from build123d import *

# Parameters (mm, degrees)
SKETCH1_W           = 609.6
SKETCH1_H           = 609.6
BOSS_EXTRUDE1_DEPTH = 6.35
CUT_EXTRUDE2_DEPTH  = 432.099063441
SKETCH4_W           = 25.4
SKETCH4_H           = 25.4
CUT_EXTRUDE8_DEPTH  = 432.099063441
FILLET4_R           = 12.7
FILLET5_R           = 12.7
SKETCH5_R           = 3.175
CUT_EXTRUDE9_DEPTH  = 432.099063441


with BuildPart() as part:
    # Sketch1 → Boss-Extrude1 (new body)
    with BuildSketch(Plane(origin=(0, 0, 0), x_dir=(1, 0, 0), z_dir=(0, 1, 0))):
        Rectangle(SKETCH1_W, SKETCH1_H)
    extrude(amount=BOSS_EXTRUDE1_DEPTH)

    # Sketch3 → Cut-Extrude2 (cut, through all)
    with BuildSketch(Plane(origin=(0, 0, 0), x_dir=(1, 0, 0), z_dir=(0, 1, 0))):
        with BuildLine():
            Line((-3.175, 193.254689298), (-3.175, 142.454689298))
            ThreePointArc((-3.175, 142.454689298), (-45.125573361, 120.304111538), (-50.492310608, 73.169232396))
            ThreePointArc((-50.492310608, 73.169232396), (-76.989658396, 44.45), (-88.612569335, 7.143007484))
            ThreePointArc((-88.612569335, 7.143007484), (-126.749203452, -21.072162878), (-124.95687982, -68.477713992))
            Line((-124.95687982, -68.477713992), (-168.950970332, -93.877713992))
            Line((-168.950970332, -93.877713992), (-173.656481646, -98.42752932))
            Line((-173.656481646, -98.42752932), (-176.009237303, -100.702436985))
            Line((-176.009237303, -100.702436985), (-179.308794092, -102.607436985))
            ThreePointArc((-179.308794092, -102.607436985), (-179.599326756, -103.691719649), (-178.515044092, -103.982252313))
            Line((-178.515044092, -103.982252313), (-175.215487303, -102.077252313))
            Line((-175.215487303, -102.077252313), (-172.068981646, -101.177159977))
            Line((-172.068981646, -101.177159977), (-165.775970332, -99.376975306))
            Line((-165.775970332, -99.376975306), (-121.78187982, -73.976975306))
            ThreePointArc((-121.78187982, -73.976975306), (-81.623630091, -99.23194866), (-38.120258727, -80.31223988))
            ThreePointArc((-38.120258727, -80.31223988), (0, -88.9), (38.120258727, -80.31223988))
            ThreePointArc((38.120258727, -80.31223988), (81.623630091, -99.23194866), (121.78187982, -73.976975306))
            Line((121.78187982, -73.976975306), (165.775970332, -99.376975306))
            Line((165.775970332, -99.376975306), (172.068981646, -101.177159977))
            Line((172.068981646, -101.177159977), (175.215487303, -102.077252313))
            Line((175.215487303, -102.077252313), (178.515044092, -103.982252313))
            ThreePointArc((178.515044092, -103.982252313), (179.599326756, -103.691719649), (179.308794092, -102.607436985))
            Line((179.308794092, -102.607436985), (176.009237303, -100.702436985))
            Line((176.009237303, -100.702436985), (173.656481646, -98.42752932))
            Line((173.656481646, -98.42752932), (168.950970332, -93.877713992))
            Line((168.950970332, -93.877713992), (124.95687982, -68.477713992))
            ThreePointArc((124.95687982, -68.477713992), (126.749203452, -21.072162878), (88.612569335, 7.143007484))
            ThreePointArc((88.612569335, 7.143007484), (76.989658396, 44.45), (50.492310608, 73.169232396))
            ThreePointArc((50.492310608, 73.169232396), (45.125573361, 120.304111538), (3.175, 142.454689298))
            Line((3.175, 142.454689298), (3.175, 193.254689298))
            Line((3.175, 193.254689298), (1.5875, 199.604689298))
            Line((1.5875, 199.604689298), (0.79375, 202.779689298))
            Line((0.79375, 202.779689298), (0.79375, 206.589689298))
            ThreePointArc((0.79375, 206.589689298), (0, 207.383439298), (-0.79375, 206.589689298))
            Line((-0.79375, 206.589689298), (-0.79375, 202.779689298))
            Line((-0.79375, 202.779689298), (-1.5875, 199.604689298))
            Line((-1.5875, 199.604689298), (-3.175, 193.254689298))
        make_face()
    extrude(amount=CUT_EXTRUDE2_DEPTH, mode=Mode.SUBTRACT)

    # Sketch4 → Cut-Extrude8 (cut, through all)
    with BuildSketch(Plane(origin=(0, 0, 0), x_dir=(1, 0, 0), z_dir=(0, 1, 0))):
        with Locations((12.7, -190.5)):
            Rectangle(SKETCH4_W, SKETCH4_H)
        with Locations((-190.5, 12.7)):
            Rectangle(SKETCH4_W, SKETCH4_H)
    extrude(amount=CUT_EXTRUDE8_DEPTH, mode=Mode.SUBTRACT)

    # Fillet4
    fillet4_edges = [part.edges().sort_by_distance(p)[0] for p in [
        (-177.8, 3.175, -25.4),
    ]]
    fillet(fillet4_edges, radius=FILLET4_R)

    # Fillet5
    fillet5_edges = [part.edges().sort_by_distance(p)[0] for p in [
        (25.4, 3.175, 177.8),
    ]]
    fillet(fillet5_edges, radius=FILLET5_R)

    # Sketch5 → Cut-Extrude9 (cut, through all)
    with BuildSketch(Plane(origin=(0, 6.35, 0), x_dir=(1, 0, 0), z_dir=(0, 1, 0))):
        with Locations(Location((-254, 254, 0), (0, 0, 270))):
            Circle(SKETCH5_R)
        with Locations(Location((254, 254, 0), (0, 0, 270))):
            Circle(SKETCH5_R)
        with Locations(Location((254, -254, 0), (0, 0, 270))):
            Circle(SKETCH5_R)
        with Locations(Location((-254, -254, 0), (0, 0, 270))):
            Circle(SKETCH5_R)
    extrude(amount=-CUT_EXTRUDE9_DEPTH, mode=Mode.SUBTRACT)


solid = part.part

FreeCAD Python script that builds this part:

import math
import FreeCAD as App
import Part
import Sketcher

V = App.Vector
Q = App.Units.Quantity


def edges_at(feature, points):
    """Names of the edges that pass closest to the given points."""
    edges = feature.Shape.Edges
    near = lambda p: min(range(len(edges)), key=lambda i: edges[i].distToShape(Part.Vertex(*p))[0])
    return sorted({f"Edge{near(p) + 1}" for p in points})

doc = App.newDocument("Part")
body = doc.addObject("PartDesign::Body", "Body")

sketch1 = body.newObject("Sketcher::SketchObject", "Sketch")
sketch1.AttachmentSupport = (doc.getObject("XZ_Plane"), [""])
sketch1.MapMode = "FlatFace"
sketch1.addGeometry(Part.LineSegment(V(-304.8, -304.8, 0), V(-304.8, 304.8, 0)), False)
sketch1.addGeometry(Part.LineSegment(V(-304.8, 304.8, 0), V(304.8, 304.8, 0)), False)
sketch1.addGeometry(Part.LineSegment(V(304.8, 304.8, 0), V(304.8, -304.8, 0)), False)
sketch1.addGeometry(Part.LineSegment(V(304.8, -304.8, 0), V(-304.8, -304.8, 0)), False)
sketch1.addConstraint(Sketcher.Constraint("Coincident", 0, 2, 1, 1))
sketch1.addConstraint(Sketcher.Constraint("Coincident", 1, 2, 2, 1))
sketch1.addConstraint(Sketcher.Constraint("Coincident", 2, 2, 3, 1))
sketch1.addConstraint(Sketcher.Constraint("Coincident", 3, 2, 0, 1))
sketch1.addConstraint(Sketcher.Constraint("Vertical", 0))
sketch1.addConstraint(Sketcher.Constraint("Horizontal", 1))
sketch1.addConstraint(Sketcher.Constraint("Vertical", 2))
sketch1.addConstraint(Sketcher.Constraint("Horizontal", 3))
sketch1.addConstraint(Sketcher.Constraint("Symmetric", 0, 2, 2, 2, -1, 1))
sketch1.addConstraint(Sketcher.Constraint("Equal", 3, 0))
sketch1.addConstraint(Sketcher.Constraint("DistanceX", 1, 1, 1, 2, Q("24 in")))
pad1 = body.newObject("PartDesign::Pad", "Pad")
pad1.Profile = sketch1
pad1.Length = Q("0.25 in")
pad1.Reversed = True

sketch2 = body.newObject("Sketcher::SketchObject", "Sketch001")
sketch2.AttachmentSupport = (doc.getObject("XZ_Plane"), [""])
sketch2.MapMode = "FlatFace"
sketch2.addGeometry(Part.LineSegment(V(-3.175, -193.254689, 0), V(-3.175, -142.454689, 0)), False)
sketch2.addGeometry(Part.ArcOfCircle(Part.Circle(V(-3.175, -91.654689, 0), V(0, 0, 1), 50.8), math.radians(158.6609), math.radians(270)), False)
sketch2.addGeometry(Part.ArcOfCircle(Part.Circle(V(0, 0, 0), V(0, 0, 1), 88.9), math.radians(-175.391385), math.radians(-124.608615)), False)
sketch2.addGeometry(Part.ArcOfCircle(Part.Circle(V(-80.962789, 43.077714, 0), V(0, 0, 1), 50.8), math.radians(150), math.radians(261.3391)), False)
sketch2.addGeometry(Part.LineSegment(V(-124.95688, 68.477714, 0), V(-168.95097, 93.877714, 0)), False)
sketch2.addGeometry(Part.LineSegment(V(-168.95097, 93.877714, 0), V(-173.656482, 98.427529, 0)), False)
sketch2.addGeometry(Part.LineSegment(V(-173.656482, 98.427529, 0), V(-176.009237, 100.702437, 0)), False)
sketch2.addGeometry(Part.LineSegment(V(-176.009237, 100.702437, 0), V(-179.308794, 102.607437, 0)), False)
sketch2.addGeometry(Part.ArcOfCircle(Part.Circle(V(-178.911919, 103.294845, 0), V(0, 0, 1), 0.79375), math.radians(60), math.radians(240)), False)
sketch2.addGeometry(Part.LineSegment(V(-178.515044, 103.982252, 0), V(-175.215487, 102.077252, 0)), False)
sketch2.addGeometry(Part.LineSegment(V(-175.215487, 102.077252, 0), V(-172.068982, 101.17716, 0)), False)
sketch2.addGeometry(Part.LineSegment(V(-172.068982, 101.17716, 0), V(-165.77597, 99.376975, 0)), False)
sketch2.addGeometry(Part.LineSegment(V(-165.77597, 99.376975, 0), V(-121.78188, 73.976975, 0)), False)
sketch2.addGeometry(Part.ArcOfCircle(Part.Circle(V(-77.787789, 48.576975, 0), V(0, 0, 1), 50.8), math.radians(38.6609), math.radians(150)), False)
sketch2.addGeometry(Part.ArcOfCircle(Part.Circle(V(0, 0, 0), V(0, 0, 1), 88.9), math.radians(64.608615), math.radians(115.391385)), False)
sketch2.addGeometry(Part.ArcOfCircle(Part.Circle(V(77.787789, 48.576975, 0), V(0, 0, 1), 50.8), math.radians(30), math.radians(141.3391)), False)
sketch2.addGeometry(Part.LineSegment(V(121.78188, 73.976975, 0), V(165.77597, 99.376975, 0)), False)
sketch2.addGeometry(Part.LineSegment(V(165.77597, 99.376975, 0), V(172.068982, 101.17716, 0)), False)
sketch2.addGeometry(Part.LineSegment(V(172.068982, 101.17716, 0), V(175.215487, 102.077252, 0)), False)
sketch2.addGeometry(Part.LineSegment(V(175.215487, 102.077252, 0), V(178.515044, 103.982252, 0)), False)
sketch2.addGeometry(Part.ArcOfCircle(Part.Circle(V(178.911919, 103.294845, 0), V(0, 0, 1), 0.79375), math.radians(-60), math.radians(120)), False)
sketch2.addGeometry(Part.LineSegment(V(179.308794, 102.607437, 0), V(176.009237, 100.702437, 0)), False)
sketch2.addGeometry(Part.LineSegment(V(176.009237, 100.702437, 0), V(173.656482, 98.427529, 0)), False)
sketch2.addGeometry(Part.LineSegment(V(173.656482, 98.427529, 0), V(168.95097, 93.877714, 0)), False)
sketch2.addGeometry(Part.LineSegment(V(168.95097, 93.877714, 0), V(124.95688, 68.477714, 0)), False)
sketch2.addGeometry(Part.ArcOfCircle(Part.Circle(V(80.962789, 43.077714, 0), V(0, 0, 1), 50.8), math.radians(-81.3391), math.radians(30)), False)
sketch2.addGeometry(Part.ArcOfCircle(Part.Circle(V(0, 0, 0), V(0, 0, 1), 88.9), math.radians(-55.391385), math.radians(-4.608615)), False)
sketch2.addGeometry(Part.ArcOfCircle(Part.Circle(V(3.175, -91.654689, 0), V(0, 0, 1), 50.8), math.radians(-90), math.radians(21.3391)), False)
sketch2.addGeometry(Part.LineSegment(V(3.175, -142.454689, 0), V(3.175, -193.254689, 0)), False)
sketch2.addGeometry(Part.LineSegment(V(3.175, -193.254689, 0), V(0.79375, -202.779689, 0)), False)
sketch2.addGeometry(Part.LineSegment(V(0.79375, -202.779689, 0), V(0.79375, -206.589689, 0)), False)
sketch2.addGeometry(Part.ArcOfCircle(Part.Circle(V(0, -206.589689, 0), V(0, 0, 1), 0.79375), math.radians(180), math.radians(360)), False)
sketch2.addGeometry(Part.LineSegment(V(-0.79375, -206.589689, 0), V(-0.79375, -202.779689, 0)), False)
sketch2.addGeometry(Part.LineSegment(V(-0.79375, -202.779689, 0), V(-3.175, -193.254689, 0)), False)
sketch2.addConstraint(Sketcher.Constraint("Coincident", 0, 2, 1, 2))
sketch2.addConstraint(Sketcher.Constraint("Coincident", 1, 1, 2, 2))
sketch2.addConstraint(Sketcher.Constraint("Coincident", 2, 1, 3, 2))
sketch2.addConstraint(Sketcher.Constraint("Coincident", 3, 1, 4, 1))
sketch2.addConstraint(Sketcher.Constraint("Coincident", 4, 2, 5, 1))
sketch2.addConstraint(Sketcher.Constraint("Coincident", 5, 2, 6, 1))
sketch2.addConstraint(Sketcher.Constraint("Coincident", 6, 2, 7, 1))
sketch2.addConstraint(Sketcher.Constraint("Tangent", 7, 2, 8, 2))
sketch2.addConstraint(Sketcher.Constraint("Tangent", 8, 1, 9, 1))
sketch2.addConstraint(Sketcher.Constraint("Coincident", 9, 2, 10, 1))
sketch2.addConstraint(Sketcher.Constraint("Coincident", 10, 2, 11, 1))
sketch2.addConstraint(Sketcher.Constraint("Coincident", 11, 2, 12, 1))
sketch2.addConstraint(Sketcher.Constraint("Coincident", 12, 2, 13, 2))
sketch2.addConstraint(Sketcher.Constraint("Coincident", 13, 1, 14, 2))
sketch2.addConstraint(Sketcher.Constraint("Coincident", 14, 1, 15, 2))
sketch2.addConstraint(Sketcher.Constraint("Coincident", 15, 1, 16, 1))
sketch2.addConstraint(Sketcher.Constraint("Coincident", 16, 2, 17, 1))
sketch2.addConstraint(Sketcher.Constraint("Coincident", 17, 2, 18, 1))
sketch2.addConstraint(Sketcher.Constraint("Coincident", 18, 2, 19, 1))
sketch2.addConstraint(Sketcher.Constraint("Tangent", 19, 2, 20, 2))
sketch2.addConstraint(Sketcher.Constraint("Tangent", 20, 1, 21, 1))
sketch2.addConstraint(Sketcher.Constraint("Coincident", 21, 2, 22, 1))
sketch2.addConstraint(Sketcher.Constraint("Coincident", 22, 2, 23, 1))
sketch2.addConstraint(Sketcher.Constraint("Coincident", 23, 2, 24, 1))
sketch2.addConstraint(Sketcher.Constraint("Coincident", 24, 2, 25, 2))
sketch2.addConstraint(Sketcher.Constraint("Coincident", 25, 1, 26, 2))
sketch2.addConstraint(Sketcher.Constraint("Coincident", 26, 1, 27, 2))
sketch2.addConstraint(Sketcher.Constraint("Coincident", 27, 1, 28, 1))
sketch2.addConstraint(Sketcher.Constraint("Coincident", 28, 2, 29, 1))
sketch2.addConstraint(Sketcher.Constraint("Coincident", 29, 2, 30, 1))
sketch2.addConstraint(Sketcher.Constraint("Tangent", 30, 2, 31, 2))
sketch2.addConstraint(Sketcher.Constraint("Tangent", 31, 1, 32, 1))
sketch2.addConstraint(Sketcher.Constraint("Coincident", 32, 2, 33, 1))
sketch2.addConstraint(Sketcher.Constraint("Coincident", 33, 2, 0, 1))
sketch2.addConstraint(Sketcher.Constraint("Vertical", 0))
sketch2.addConstraint(Sketcher.Constraint("Vertical", 28))
sketch2.addConstraint(Sketcher.Constraint("Vertical", 30))
sketch2.addConstraint(Sketcher.Constraint("Vertical", 32))
sketch2.addConstraint(Sketcher.Constraint("Coincident", 2, 3, -1, 1))
sketch2.addConstraint(Sketcher.Constraint("Coincident", 14, 3, -1, 1))
sketch2.addConstraint(Sketcher.Constraint("Coincident", 26, 3, -1, 1))
sketch2.addConstraint(Sketcher.Constraint("Equal", 1, 3))
sketch2.addConstraint(Sketcher.Constraint("Equal", 3, 13))
sketch2.addConstraint(Sketcher.Constraint("Equal", 2, 14))
sketch2.addConstraint(Sketcher.Constraint("Equal", 13, 15))
sketch2.addConstraint(Sketcher.Constraint("Equal", 8, 20))
sketch2.addConstraint(Sketcher.Constraint("Equal", 15, 25))
sketch2.addConstraint(Sketcher.Constraint("Equal", 14, 26))
sketch2.addConstraint(Sketcher.Constraint("Equal", 25, 27))
sketch2.addConstraint(Sketcher.Constraint("Equal", 20, 31))
sketch2.addConstraint(Sketcher.Constraint("Symmetric", 13, 3, 15, 3, -2))
sketch2.addConstraint(Sketcher.Constraint("Symmetric", 8, 3, 20, 3, -2))
sketch2.addConstraint(Sketcher.Constraint("Symmetric", 3, 3, 25, 3, -2))
sketch2.addConstraint(Sketcher.Constraint("Symmetric", 1, 3, 27, 3, -2))
sketch2.addConstraint(Sketcher.Constraint("Symmetric", 11, 2, 16, 2, -2))
sketch2.addConstraint(Sketcher.Constraint("Symmetric", 10, 2, 17, 2, -2))
sketch2.addConstraint(Sketcher.Constraint("Symmetric", 9, 2, 18, 2, -2))
sketch2.addConstraint(Sketcher.Constraint("Symmetric", 6, 2, 21, 2, -2))
sketch2.addConstraint(Sketcher.Constraint("Symmetric", 5, 2, 22, 2, -2))
sketch2.addConstraint(Sketcher.Constraint("Symmetric", 4, 2, 23, 2, -2))
sketch2.addConstraint(Sketcher.Constraint("Symmetric", 29, 2, 32, 2, -2))
sketch2.addConstraint(Sketcher.Constraint("Symmetric", 28, 2, 33, 2, -2))
sketch2.addConstraint(Sketcher.Constraint("Parallel", 5, 6))
sketch2.addConstraint(Sketcher.Constraint("Parallel", 4, 7))
sketch2.addConstraint(Sketcher.Constraint("Parallel", 7, 9))
sketch2.addConstraint(Sketcher.Constraint("Parallel", 10, 11))
sketch2.addConstraint(Sketcher.Constraint("Parallel", 9, 12))
sketch2.addConstraint(Sketcher.Constraint("Parallel", 16, 19))
sketch2.addConstraint(Sketcher.Constraint("Parallel", 21, 24))
sketch2.addConstraint(Sketcher.Constraint("Vertical", 1, 3, 0, 2))
sketch2.addConstraint(Sketcher.Constraint("Equal", 7, 9))
sketch2.addConstraint(Sketcher.Constraint("Equal", 6, 10))
sketch2.addConstraint(Sketcher.Constraint("Equal", 5, 11))
sketch2.addConstraint(Sketcher.Constraint("Equal", 4, 12))
sketch2.addConstraint(Sketcher.Constraint("Radius", 1, Q("2 in")))
sketch2.addConstraint(Sketcher.Constraint("Radius", 2, Q("3.5 in")))
sketch2.addConstraint(Sketcher.Constraint("DistanceY", 0, 1, 0, 2, Q("2 in")))
sketch2.addConstraint(Sketcher.Constraint("Distance", 4, Q("2 in")))
sketch2.addConstraint(Sketcher.Constraint("Angle", 4, Q("150 deg")))
sketch2.addConstraint(Sketcher.Constraint("Radius", 8, Q("0.03125 in")))
sketch2.addConstraint(Sketcher.Constraint("DistanceY", 3, 3, 3, 1, Q("1 in")))
sketch2.addConstraint(Sketcher.Constraint("DistanceY", 13, 3, 12, 2, Q("1 in")))
sketch2.addConstraint(Sketcher.Constraint("DistanceY", 30, 2, 30, 1, Q("0.15 in")))
sketch2.addConstraint(Sketcher.Constraint("Distance", 7, Q("0.15 in")))
sketch2.addConstraint(Sketcher.Constraint("DistanceX", 1, 3, 27, 3, Q("0.25 in")))
sketch2.addConstraint(Sketcher.Constraint("DistanceX", 3, 3, 13, 3, Q("0.125 in")))
sketch2.addConstraint(Sketcher.Constraint("DistanceY", 31, 3, 1, 3, Q("4.525 in")))
sketch2.addConstraint(Sketcher.Constraint("DistanceX", 5, 2, 10, 2, Q("0.0625 in")))
sketch2.addConstraint(Sketcher.Constraint("DistanceY", 2, 1, 13, 3, Q("2.1937001 in")))
sketch2.addConstraint(Sketcher.Constraint("DistanceX", 4, 2, 2, 1, 80.338401))
sketch2.addConstraint(Sketcher.Constraint("DistanceX", 5, 2, 3, 1, 48.699602))
sketch2.addConstraint(Sketcher.Constraint("DistanceY", 1, 3, -1, 1, 91.654689))
sketch2.addConstraint(Sketcher.Constraint("DistanceX", 3, 3, -1, 1, 80.962789))
pocket1 = body.newObject("PartDesign::Pocket", "Pocket")
pocket1.Profile = sketch2
pocket1.Type = "ThroughAll"

sketch3 = body.newObject("Sketcher::SketchObject", "Sketch002")
sketch3.AttachmentSupport = (doc.getObject("XZ_Plane"), [""])
sketch3.MapMode = "FlatFace"
sketch3.addGeometry(Part.LineSegment(V(0, 177.8, 0), V(0, 203.2, 0)), False)
sketch3.addGeometry(Part.LineSegment(V(0, 203.2, 0), V(25.4, 203.2, 0)), False)
sketch3.addGeometry(Part.LineSegment(V(25.4, 203.2, 0), V(25.4, 177.8, 0)), False)
sketch3.addGeometry(Part.LineSegment(V(25.4, 177.8, 0), V(0, 177.8, 0)), False)
sketch3.addGeometry(Part.LineSegment(V(-203.2, -25.4, 0), V(-203.2, 0, 0)), False)
sketch3.addGeometry(Part.LineSegment(V(-203.2, 0, 0), V(-177.8, 0, 0)), False)
sketch3.addGeometry(Part.LineSegment(V(-177.8, 0, 0), V(-177.8, -25.4, 0)), False)
sketch3.addGeometry(Part.LineSegment(V(-177.8, -25.4, 0), V(-203.2, -25.4, 0)), False)
sketch3.addConstraint(Sketcher.Constraint("Coincident", 0, 2, 1, 1))
sketch3.addConstraint(Sketcher.Constraint("Coincident", 1, 2, 2, 1))
sketch3.addConstraint(Sketcher.Constraint("Coincident", 2, 2, 3, 1))
sketch3.addConstraint(Sketcher.Constraint("Coincident", 3, 2, 0, 1))
sketch3.addConstraint(Sketcher.Constraint("Coincident", 4, 2, 5, 1))
sketch3.addConstraint(Sketcher.Constraint("Coincident", 5, 2, 6, 1))
sketch3.addConstraint(Sketcher.Constraint("Coincident", 6, 2, 7, 1))
sketch3.addConstraint(Sketcher.Constraint("Coincident", 7, 2, 4, 1))
sketch3.addConstraint(Sketcher.Constraint("Vertical", 0))
sketch3.addConstraint(Sketcher.Constraint("Horizontal", 1))
sketch3.addConstraint(Sketcher.Constraint("Vertical", 2))
sketch3.addConstraint(Sketcher.Constraint("Horizontal", 3))
sketch3.addConstraint(Sketcher.Constraint("Vertical", 4))
sketch3.addConstraint(Sketcher.Constraint("Horizontal", 5))
sketch3.addConstraint(Sketcher.Constraint("Vertical", 6))
sketch3.addConstraint(Sketcher.Constraint("Horizontal", 7))
sketch3.addConstraint(Sketcher.Constraint("PointOnObject", 0, 2, -2))
sketch3.addConstraint(Sketcher.Constraint("PointOnObject", 4, 2, -1))
sketch3.addConstraint(Sketcher.Constraint("Equal", 3, 5))
sketch3.addConstraint(Sketcher.Constraint("Equal", 7, 0))
sketch3.addConstraint(Sketcher.Constraint("Equal", 2, 4))
sketch3.addConstraint(Sketcher.Constraint("DistanceX", 1, 1, 1, 2, Q("1 in")))
sketch3.addConstraint(Sketcher.Constraint("DistanceY", -1, 1, 0, 2, Q("8 in")))
sketch3.addConstraint(Sketcher.Constraint("DistanceX", 4, 2, -1, 1, Q("8 in")))
pocket2 = body.newObject("PartDesign::Pocket", "Pocket001")
pocket2.Profile = sketch3
pocket2.Type = "ThroughAll"
doc.recompute()

fillet = body.newObject("PartDesign::Fillet", "Fillet")
fillet.Base = (pocket2, edges_at(pocket2, [(-177.8, 3.175, -25.4)]))
fillet.Radius = Q("0.5 in")
doc.recompute()

fillet2 = body.newObject("PartDesign::Fillet", "Fillet001")
fillet2.Base = (fillet, edges_at(fillet, [(25.4, 3.175, 177.8)]))
fillet2.Radius = Q("0.5 in")

sketch4 = body.newObject("Sketcher::SketchObject", "Sketch003")
sketch4.AttachmentSupport = (doc.getObject("XZ_Plane"), [""])
sketch4.MapMode = "FlatFace"
sketch4.AttachmentOffset = App.Placement(V(0, 0, -0.25 * 25.4), App.Rotation())
sketch4.addGeometry(Part.Circle(V(-254, -254, 0), V(0, 0, 1), 3.175), False)
sketch4.addGeometry(Part.Circle(V(254, -254, 0), V(0, 0, 1), 3.175), False)
sketch4.addGeometry(Part.Circle(V(254, 254, 0), V(0, 0, 1), 3.175), False)
sketch4.addGeometry(Part.Circle(V(-254, 254, 0), V(0, 0, 1), 3.175), False)
sketch4.addConstraint(Sketcher.Constraint("Equal", 0, 1))
sketch4.addConstraint(Sketcher.Constraint("Equal", 1, 2))
sketch4.addConstraint(Sketcher.Constraint("Equal", 2, 3))
sketch4.addConstraint(Sketcher.Constraint("Symmetric", 0, 3, 2, 3, -1, 1))
sketch4.addConstraint(Sketcher.Constraint("Symmetric", 1, 3, 3, 3, -1, 1))
sketch4.addConstraint(Sketcher.Constraint("Symmetric", 0, 3, 1, 3, -2))
sketch4.addConstraint(Sketcher.Constraint("Diameter", 0, Q("0.25 in")))
sketch4.addConstraint(Sketcher.Constraint("DistanceX", 0, 3, -1, 1, Q("10 in")))
sketch4.addConstraint(Sketcher.Constraint("DistanceY", 0, 3, -1, 1, Q("10 in")))
pocket3 = body.newObject("PartDesign::Pocket", "Pocket002")
pocket3.Profile = sketch4
pocket3.Type = "ThroughAll"
pocket3.Reversed = True

doc.recompute()
